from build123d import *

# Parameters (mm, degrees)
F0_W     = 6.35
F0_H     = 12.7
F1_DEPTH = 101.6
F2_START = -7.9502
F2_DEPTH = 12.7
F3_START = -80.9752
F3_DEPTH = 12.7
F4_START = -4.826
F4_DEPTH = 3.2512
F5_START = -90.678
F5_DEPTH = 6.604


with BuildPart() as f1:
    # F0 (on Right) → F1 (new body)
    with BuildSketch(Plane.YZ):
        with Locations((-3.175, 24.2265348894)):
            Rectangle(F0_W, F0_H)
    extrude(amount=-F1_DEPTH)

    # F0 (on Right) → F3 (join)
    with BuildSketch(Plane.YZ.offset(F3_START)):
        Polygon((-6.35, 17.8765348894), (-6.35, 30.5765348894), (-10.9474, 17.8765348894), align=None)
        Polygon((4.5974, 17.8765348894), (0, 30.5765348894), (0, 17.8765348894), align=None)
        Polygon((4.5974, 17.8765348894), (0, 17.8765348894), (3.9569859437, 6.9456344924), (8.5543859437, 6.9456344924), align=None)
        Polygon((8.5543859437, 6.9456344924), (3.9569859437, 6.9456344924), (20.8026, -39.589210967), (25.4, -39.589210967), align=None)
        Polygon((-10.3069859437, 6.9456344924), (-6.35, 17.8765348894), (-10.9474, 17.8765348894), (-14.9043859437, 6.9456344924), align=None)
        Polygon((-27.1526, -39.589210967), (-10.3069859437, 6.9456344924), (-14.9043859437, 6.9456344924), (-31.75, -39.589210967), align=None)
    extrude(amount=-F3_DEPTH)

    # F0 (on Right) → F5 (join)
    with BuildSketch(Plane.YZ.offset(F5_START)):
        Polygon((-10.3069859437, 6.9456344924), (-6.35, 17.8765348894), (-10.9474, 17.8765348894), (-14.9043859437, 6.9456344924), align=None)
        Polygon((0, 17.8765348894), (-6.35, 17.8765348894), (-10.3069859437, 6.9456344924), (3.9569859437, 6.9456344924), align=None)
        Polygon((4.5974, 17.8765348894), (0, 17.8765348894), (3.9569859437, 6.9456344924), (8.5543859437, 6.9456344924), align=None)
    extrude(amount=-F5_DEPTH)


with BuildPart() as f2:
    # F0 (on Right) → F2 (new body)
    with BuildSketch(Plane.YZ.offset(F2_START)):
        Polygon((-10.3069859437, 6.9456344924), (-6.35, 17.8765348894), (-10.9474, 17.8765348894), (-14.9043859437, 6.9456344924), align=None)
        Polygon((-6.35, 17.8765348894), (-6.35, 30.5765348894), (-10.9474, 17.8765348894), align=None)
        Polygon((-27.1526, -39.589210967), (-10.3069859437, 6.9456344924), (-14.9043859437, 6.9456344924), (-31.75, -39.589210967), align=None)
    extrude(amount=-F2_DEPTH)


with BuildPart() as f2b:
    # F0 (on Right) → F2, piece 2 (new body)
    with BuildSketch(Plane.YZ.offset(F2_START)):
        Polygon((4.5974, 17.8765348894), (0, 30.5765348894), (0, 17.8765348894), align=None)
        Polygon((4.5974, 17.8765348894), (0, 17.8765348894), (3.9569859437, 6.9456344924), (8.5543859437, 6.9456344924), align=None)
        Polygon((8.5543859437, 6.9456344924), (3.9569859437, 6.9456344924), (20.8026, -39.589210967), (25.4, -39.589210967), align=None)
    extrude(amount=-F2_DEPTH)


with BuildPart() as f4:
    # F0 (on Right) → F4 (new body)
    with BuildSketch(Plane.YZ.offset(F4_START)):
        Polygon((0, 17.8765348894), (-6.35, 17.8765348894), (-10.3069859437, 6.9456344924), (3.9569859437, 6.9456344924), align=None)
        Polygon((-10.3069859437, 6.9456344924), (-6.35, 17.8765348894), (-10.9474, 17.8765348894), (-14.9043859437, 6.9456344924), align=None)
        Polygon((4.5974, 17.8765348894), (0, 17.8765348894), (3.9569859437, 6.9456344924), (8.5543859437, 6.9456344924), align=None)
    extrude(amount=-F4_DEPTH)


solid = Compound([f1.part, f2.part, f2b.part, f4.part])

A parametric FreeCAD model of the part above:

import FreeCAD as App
import Part
import Sketcher

V = App.Vector
Q = App.Units.Quantity


def add_polygon(sketch, points):
    """Adds a closed chain of lines whose ends are joined by coincident constraints."""
    first, n = sketch.GeometryCount, len(points)
    for a, b in zip(points, points[1:] + points[:1]):
        sketch.addGeometry(Part.LineSegment(App.Vector(*a, 0), App.Vector(*b, 0)), False)
    for i in range(n):
        sketch.addConstraint(Sketcher.Constraint("Coincident", first + i, 2, first + (i + 1) % n, 1))

doc = App.newDocument("Part")
params = doc.addObject("Spreadsheet::Sheet", "Params")
for row, (alias, value) in enumerate([
    ("sketch1_height", "0.5 in"),
    ("sketch1_width", "0.25 in"),
    ("pad1_length", "4 in"),
    ("sketch2_height", "0.5 in"),
    ("sketch2_width", "0.181 in"),
    ("pad2_length", "0.5 in"),
    ("sketch3_width", "0.612 in"),
    ("pad3_length", "0.26 in"),
    ("sketch4_height", "0.5 in"),
    ("sketch4_width", "0.181 in"),
    ("pad4_length", "0.5 in"),
    ("sketch5_height", "0.5 in"),
    ("sketch5_width", "0.181 in"),
    ("pad5_length", "0.5 in"),
    ("sketch6_width", "0.612 in"),
    ("pad6_length", "0.128 in"),
], start=1):
    params.set(f"A{row}", alias)
    params.set(f"B{row}", "=" + value)
    params.setAlias(f"B{row}", alias)

body = doc.addObject("PartDesign::Body", "Body")

# Sketch on YZ plane
sketch1 = body.newObject("Sketcher::SketchObject", "Sketch")
sketch1.AttachmentSupport = (doc.getObject("YZ_Plane"), [""])
sketch1.MapMode = "FlatFace"
add_polygon(sketch1, [(-6, 31), (-6, 18), (0, 18), (0, 31)])  # lines 0-3
sketch1.addConstraint(Sketcher.Constraint("Vertical", 0))
sketch1.addConstraint(Sketcher.Constraint("Horizontal", 1))
sketch1.addConstraint(Sketcher.Constraint("Vertical", 2))
sketch1.addConstraint(Sketcher.Constraint("Horizontal", 3))
sketch1.addConstraint(Sketcher.Constraint("PointOnObject", 1, 2, -2))
sketch1.addConstraint(Sketcher.Constraint("DistanceY", 0, 2, 0, 1, Q("0.5 in")))
sketch1.addConstraint(Sketcher.Constraint("DistanceX", 1, 1, 1, 2, Q("0.25 in")))
sketch1.addConstraint(Sketcher.Constraint("DistanceY", -1, 1, 0, 2, Q("17.876535 mm")))
sketch1.setExpression("Constraints[9]", "Params.sketch1_height")
sketch1.setExpression("Constraints[10]", "Params.sketch1_width")
pad1 = body.newObject("PartDesign::Pad", "Pad")
pad1.Profile = sketch1
pad1.setExpression("Length", "Params.pad1_length")
pad1.Reversed = True

# Sketch on YZ plane
sketch2 = body.newObject("Sketcher::SketchObject", "Sketch001")
sketch2.AttachmentSupport = (doc.getObject("YZ_Plane"), [""])
sketch2.MapMode = "FlatFace"
sketch2.AttachmentOffset = App.Placement(V(0, 0, -3.188 * 25.4), App.Rotation())
add_polygon(sketch2, [(-6.3, 17.9), (-6.3, 30.6), (-10.9, 17.9), (-14.9, 6.9), (-31.8, -39.6), (-27.2, -39.6), (-10.3, 6.9)])  # lines 0-6
add_polygon(sketch2, [(4.6, 17.9), (0, 30.6), (0, 17.9), (4, 6.9), (20.8, -39.6), (25.4, -39.6), (8.6, 6.9)])  # lines 7-13
sketch2.addConstraint(Sketcher.Constraint("Vertical", 0))
sketch2.addConstraint(Sketcher.Constraint("Horizontal", 4))
sketch2.addConstraint(Sketcher.Constraint("Vertical", 8))
sketch2.addConstraint(Sketcher.Constraint("Horizontal", 11))
sketch2.addConstraint(Sketcher.Constraint("PointOnObject", 7, 2, -2))
sketch2.addConstraint(Sketcher.Constraint("Parallel", 1, 2))
sketch2.addConstraint(Sketcher.Constraint("Parallel", 2, 3))
sketch2.addConstraint(Sketcher.Constraint("Parallel", 3, 5))
sketch2.addConstraint(Sketcher.Constraint("Parallel", 5, 6))
sketch2.addConstraint(Sketcher.Constraint("Parallel", 7, 9))
sketch2.addConstraint(Sketcher.Constraint("Parallel", 9, 10))
sketch2.addConstraint(Sketcher.Constraint("Parallel", 10, 12))
sketch2.addConstraint(Sketcher.Constraint("Parallel", 12, 13))
sketch2.addConstraint(Sketcher.Constraint("Horizontal", 2, 2, 5, 2))
sketch2.addConstraint(Sketcher.Constraint("Horizontal", 1, 2, 6, 2))
sketch2.addConstraint(Sketcher.Constraint("Horizontal", 0, 2, 7, 2))
sketch2.addConstraint(Sketcher.Constraint("Horizontal", 6, 2, 8, 2))
sketch2.addConstraint(Sketcher.Constraint("Horizontal", 5, 2, 9, 2))
sketch2.addConstraint(Sketcher.Constraint("Horizontal", 4, 2, 10, 2))
sketch2.addConstraint(Sketcher.Constraint("Horizontal", 9, 2, 12, 2))
sketch2.addConstraint(Sketcher.Constraint("Horizontal", 8, 2, 13, 2))
sketch2.addConstraint(Sketcher.Constraint("Equal", 4, 11))
sketch2.addConstraint(Sketcher.Constraint("DistanceY", 0, 1, 0, 2, Q("0.5 in")))
sketch2.addConstraint(Sketcher.Constraint("DistanceX", -1, 1, 11, 2, Q("1 in")))
sketch2.addConstraint(Sketcher.Constraint("DistanceX", 4, 1, 4, 2, Q("0.181 in")))
sketch2.addConstraint(Sketcher.Constraint("DistanceX", 0, 2, -1, 1, Q("0.25 in")))
sketch2.addConstraint(Sketcher.Constraint("DistanceY", 2, 2, 1, 2, Q("10.9309 mm")))
sketch2.addConstraint(Sketcher.Constraint("DistanceY", 3, 2, -1, 1, Q("39.589211 mm")))
sketch2.setExpression("Constraints[36]", "Params.sketch2_height")
sketch2.setExpression("Constraints[38]", "Params.sketch2_width")
pad2 = body.newObject("PartDesign::Pad", "Pad001")
pad2.Profile = sketch2
pad2.setExpression("Length", "Params.pad2_length")
pad2.Reversed = True

# Sketch on YZ plane
sketch3 = body.newObject("Sketcher::SketchObject", "Sketch002")
sketch3.AttachmentSupport = (doc.getObject("YZ_Plane"), [""])
sketch3.MapMode = "FlatFace"
sketch3.AttachmentOffset = App.Placement(V(0, 0, -3.57 * 25.4), App.Rotation())
add_polygon(sketch3, [(-11, 18), (-15, 7), (9, 7), (5, 18)])  # lines 0-3
sketch3.addConstraint(Sketcher.Constraint("Horizontal", 1))
sketch3.addConstraint(Sketcher.Constraint("Horizontal", 3))
sketch3.addConstraint(Sketcher.Constraint("Equal", 0, 2))
sketch3.addConstraint(Sketcher.Constraint("DistanceX", 3, 2, 3, 1, Q("0.612 in")))
sketch3.addConstraint(Sketcher.Constraint("DistanceX", -1, 1, 2, 2, Q("0.181 in")))
sketch3.addConstraint(Sketcher.Constraint("DistanceX", 1, 1, 1, 2, Q("23.458772 mm")))
sketch3.addConstraint(Sketcher.Constraint("DistanceY", 1, 2, 2, 2, Q("10.9309 mm")))
sketch3.addConstraint(Sketcher.Constraint("DistanceY", -1, 1, 0, 2, Q("6.945634 mm")))
sketch3.setExpression("Constraints[7]", "Params.sketch3_width")
pad3 = body.newObject("PartDesign::Pad", "Pad002")
pad3.Profile = sketch3
pad3.setExpression("Length", "Params.pad3_length")
pad3.Reversed = True
body2 = doc.addObject("PartDesign::Body", "Body001")

# Sketch on YZ plane
sketch4 = body2.newObject("Sketcher::SketchObject", "Sketch003")
sketch4.AttachmentSupport = (doc.getObject("YZ_Plane001"), [""])
sketch4.MapMode = "FlatFace"
sketch4.AttachmentOffset = App.Placement(V(0, 0, -0.313 * 25.4), App.Rotation())
add_polygon(sketch4, [(-10.3, 6.9), (-6.3, 17.9), (-6.3, 30.6), (-10.9, 17.9), (-14.9, 6.9), (-31.8, -39.6), (-27.2, -39.6)])  # lines 0-6
sketch4.addConstraint(Sketcher.Constraint("Vertical", 1))
sketch4.addConstraint(Sketcher.Constraint("Horizontal", 5))
sketch4.addConstraint(Sketcher.Constraint("Parallel", 0, 2))
sketch4.addConstraint(Sketcher.Constraint("Parallel", 2, 3))
sketch4.addConstraint(Sketcher.Constraint("Parallel", 3, 4))
sketch4.addConstraint(Sketcher.Constraint("Parallel", 4, 6))
sketch4.addConstraint(Sketcher.Constraint("Horizontal", 0, 2, 2, 2))
sketch4.addConstraint(Sketcher.Constraint("Horizontal", 3, 2, 6, 2))
sketch4.addConstraint(Sketcher.Constraint("DistanceY", 1, 1, 1, 2, Q("0.5 in")))
sketch4.addConstraint(Sketcher.Constraint("DistanceX", 4, 2, 0, 2, Q("1 in")))
sketch4.addConstraint(Sketcher.Constraint("DistanceX", 5, 1, 5, 2, Q("0.181 in")))
sketch4.addConstraint(Sketcher.Constraint("DistanceX", 0, 2, -1, 1, Q("0.25 in")))
sketch4.addConstraint(Sketcher.Constraint("DistanceY", 3, 2, 2, 2, Q("10.9309 mm")))
sketch4.addConstraint(Sketcher.Constraint("DistanceY", 4, 2, -1, 1, Q("39.589211 mm")))
sketch4.setExpression("Constraints[15]", "Params.sketch4_height")
sketch4.setExpression("Constraints[17]", "Params.sketch4_width")
pad4 = body2.newObject("PartDesign::Pad", "Pad003")
pad4.Profile = sketch4
pad4.setExpression("Length", "Params.pad4_length")
pad4.Reversed = True
body3 = doc.addObject("PartDesign::Body", "Body002")

# Sketch on YZ plane
sketch5 = body3.newObject("Sketcher::SketchObject", "Sketch004")
sketch5.AttachmentSupport = (doc.getObject("YZ_Plane002"), [""])
sketch5.MapMode = "FlatFace"
sketch5.AttachmentOffset = App.Placement(V(0, 0, -0.313 * 25.4), App.Rotation())
add_polygon(sketch5, [(4.6, 17.9), (0, 30.6), (0, 17.9), (4, 6.9), (20.8, -39.6), (25.4, -39.6), (8.6, 6.9)])  # lines 0-6
sketch5.addConstraint(Sketcher.Constraint("Vertical", 1))
sketch5.addConstraint(Sketcher.Constraint("Horizontal", 4))
sketch5.addConstraint(Sketcher.Constraint("PointOnObject", 0, 2, -2))
sketch5.addConstraint(Sketcher.Constraint("Parallel", 0, 2))
sketch5.addConstraint(Sketcher.Constraint("Parallel", 2, 3))
sketch5.addConstraint(Sketcher.Constraint("Parallel", 3, 5))
sketch5.addConstraint(Sketcher.Constraint("Parallel", 5, 6))
sketch5.addConstraint(Sketcher.Constraint("Horizontal", 2, 2, 5, 2))
sketch5.addConstraint(Sketcher.Constraint("Horizontal", 1, 2, 6, 2))
sketch5.addConstraint(Sketcher.Constraint("DistanceY", 1, 2, 1, 1, Q("0.5 in")))
sketch5.addConstraint(Sketcher.Constraint("DistanceX", -1, 1, 4, 2, Q("1 in")))
sketch5.addConstraint(Sketcher.Constraint("DistanceX", 4, 1, 4, 2, Q("0.181 in")))
sketch5.addConstraint(Sketcher.Constraint("DistanceY", 2, 2, 1, 2, Q("10.9309 mm")))
sketch5.addConstraint(Sketcher.Constraint("DistanceY", 3, 2, -1, 1, Q("39.589211 mm")))
sketch5.setExpression("Constraints[16]", "Params.sketch5_height")
sketch5.setExpression("Constraints[18]", "Params.sketch5_width")
pad5 = body3.newObject("PartDesign::Pad", "Pad004")
pad5.Profile = sketch5
pad5.setExpression("Length", "Params.pad5_length")
pad5.Reversed = True
body4 = doc.addObject("PartDesign::Body", "Body003")

# Sketch on YZ plane
sketch6 = body4.newObject("Sketcher::SketchObject", "Sketch005")
sketch6.AttachmentSupport = (doc.getObject("YZ_Plane003"), [""])
sketch6.MapMode = "FlatFace"
sketch6.AttachmentOffset = App.Placement(V(0, 0, -0.19 * 25.4), App.Rotation())
add_polygon(sketch6, [(-11, 18), (-15, 7), (9, 7), (5, 18)])  # lines 0-3
sketch6.addConstraint(Sketcher.Constraint("Horizontal", 1))
sketch6.addConstraint(Sketcher.Constraint("Horizontal", 3))
sketch6.addConstraint(Sketcher.Constraint("Equal", 0, 2))
sketch6.addConstraint(Sketcher.Constraint("DistanceX", 3, 2, 3, 1, Q("0.612 in")))
sketch6.addConstraint(Sketcher.Constraint("DistanceX", -1, 1, 2, 2, Q("0.181 in")))
sketch6.addConstraint(Sketcher.Constraint("DistanceX", 1, 1, 1, 2, Q("23.458772 mm")))
sketch6.addConstraint(Sketcher.Constraint("DistanceY", 1, 2, 2, 2, Q("10.9309 mm")))
sketch6.addConstraint(Sketcher.Constraint("DistanceY", -1, 1, 0, 2, Q("6.945634 mm")))
sketch6.setExpression("Constraints[7]", "Params.sketch6_width")
pad6 = body4.newObject("PartDesign::Pad", "Pad005")
pad6.Profile = sketch6
pad6.setExpression("Length", "Params.pad6_length")
pad6.Reversed = True

doc.recompute()
